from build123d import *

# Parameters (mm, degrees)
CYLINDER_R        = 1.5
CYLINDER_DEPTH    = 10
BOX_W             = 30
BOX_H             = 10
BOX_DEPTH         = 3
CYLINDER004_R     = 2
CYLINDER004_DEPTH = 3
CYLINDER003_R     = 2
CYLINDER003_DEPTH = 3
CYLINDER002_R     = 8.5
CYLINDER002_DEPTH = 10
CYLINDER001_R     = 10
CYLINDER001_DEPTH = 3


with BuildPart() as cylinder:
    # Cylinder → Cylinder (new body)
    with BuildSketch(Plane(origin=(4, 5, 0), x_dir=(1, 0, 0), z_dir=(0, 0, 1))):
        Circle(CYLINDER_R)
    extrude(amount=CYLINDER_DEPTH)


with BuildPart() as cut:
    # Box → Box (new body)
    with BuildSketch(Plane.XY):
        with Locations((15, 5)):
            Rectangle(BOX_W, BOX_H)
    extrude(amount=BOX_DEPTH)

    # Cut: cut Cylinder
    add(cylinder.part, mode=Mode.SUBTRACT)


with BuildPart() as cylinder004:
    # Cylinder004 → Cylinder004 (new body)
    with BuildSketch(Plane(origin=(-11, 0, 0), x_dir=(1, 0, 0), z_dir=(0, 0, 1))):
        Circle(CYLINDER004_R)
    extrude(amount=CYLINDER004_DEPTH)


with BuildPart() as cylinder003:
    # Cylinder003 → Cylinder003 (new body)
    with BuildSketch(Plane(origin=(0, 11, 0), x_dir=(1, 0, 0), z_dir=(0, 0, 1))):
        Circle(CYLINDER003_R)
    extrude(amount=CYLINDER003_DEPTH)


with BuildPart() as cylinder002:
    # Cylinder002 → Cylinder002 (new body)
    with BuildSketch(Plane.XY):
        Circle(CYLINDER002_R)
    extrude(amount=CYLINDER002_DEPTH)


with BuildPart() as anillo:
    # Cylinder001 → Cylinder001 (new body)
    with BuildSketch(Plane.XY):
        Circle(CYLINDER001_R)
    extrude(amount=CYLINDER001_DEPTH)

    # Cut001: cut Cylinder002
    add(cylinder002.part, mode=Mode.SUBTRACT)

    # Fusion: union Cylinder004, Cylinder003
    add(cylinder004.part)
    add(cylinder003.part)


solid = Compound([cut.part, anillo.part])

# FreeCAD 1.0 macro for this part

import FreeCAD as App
import Part
import Sketcher

V = App.Vector


def add_polygon(sketch, points):
    """Adds a closed chain of lines whose ends are joined by coincident constraints."""
    first, n = sketch.GeometryCount, len(points)
    for a, b in zip(points, points[1:] + points[:1]):
        sketch.addGeometry(Part.LineSegment(App.Vector(*a, 0), App.Vector(*b, 0)), False)
    for i in range(n):
        sketch.addConstraint(Sketcher.Constraint("Coincident", first + i, 2, first + (i + 1) % n, 1))

doc = App.newDocument("Part")
body = doc.addObject("PartDesign::Body", "Body")

# Sketch on XY plane
sketch1 = body.newObject("Sketcher::SketchObject", "Sketch")
sketch1.AttachmentSupport = (doc.getObject("XY_Plane"), [""])
sketch1.MapMode = "FlatFace"
sketch1.addGeometry(Part.Circle(V(4, 5, 0), V(0, 0, 1), 1.5), False)
sketch1.addConstraint(Sketcher.Constraint("Diameter", 0, 3.0))
sketch1.addConstraint(Sketcher.Constraint("DistanceX", -1, 1, 0, 3, 4.0))
sketch1.addConstraint(Sketcher.Constraint("DistanceY", -1, 1, 0, 3, 5.0))
pad1 = body.newObject("PartDesign::Pad", "Pad")
pad1.Profile = sketch1
pad1.Length = 10
body2 = doc.addObject("PartDesign::Body", "Body001")

# Sketch on XY plane
sketch2 = body2.newObject("Sketcher::SketchObject", "Sketch001")
sketch2.AttachmentSupport = (doc.getObject("XY_Plane001"), [""])
sketch2.MapMode = "FlatFace"
add_polygon(sketch2, [(0, 10), (0, 0), (30, 0), (30, 10)])  # lines 0-3
sketch2.addConstraint(Sketcher.Constraint("Vertical", 0))
sketch2.addConstraint(Sketcher.Constraint("Horizontal", 1))
sketch2.addConstraint(Sketcher.Constraint("Vertical", 2))
sketch2.addConstraint(Sketcher.Constraint("Horizontal", 3))
sketch2.addConstraint(Sketcher.Constraint("Coincident", 0, 2, -1, 1))
sketch2.addConstraint(Sketcher.Constraint("DistanceX", 1, 1, 1, 2, 30.0))
sketch2.addConstraint(Sketcher.Constraint("DistanceY", 0, 2, 0, 1, 10.0))
pad2 = body2.newObject("PartDesign::Pad", "Pad001")
pad2.Profile = sketch2
pad2.Length = 3
doc.recompute()

boolean = body2.newObject("PartDesign::Boolean", "Boolean")
boolean.Type = "Cut"
boolean.addObjects([body])
body3 = doc.addObject("PartDesign::Body", "Body002")

# Sketch on XY plane
sketch3 = body3.newObject("Sketcher::SketchObject", "Sketch002")
sketch3.AttachmentSupport = (doc.getObject("XY_Plane002"), [""])
sketch3.MapMode = "FlatFace"
sketch3.addGeometry(Part.Circle(V(-11, 0, 0), V(0, 0, 1), 2), False)
sketch3.addConstraint(Sketcher.Constraint("PointOnObject", 0, 3, -1))
sketch3.addConstraint(Sketcher.Constraint("Diameter", 0, 4.0))
sketch3.addConstraint(Sketcher.Constraint("DistanceX", 0, 3, -1, 1, 11.0))
pad3 = body3.newObject("PartDesign::Pad", "Pad002")
pad3.Profile = sketch3
pad3.Length = 3
body4 = doc.addObject("PartDesign::Body", "Body003")

# Sketch on XY plane
sketch4 = body4.newObject("Sketcher::SketchObject", "Sketch003")
sketch4.AttachmentSupport = (doc.getObject("XY_Plane003"), [""])
sketch4.MapMode = "FlatFace"
sketch4.addGeometry(Part.Circle(V(0, 11, 0), V(0, 0, 1), 2), False)
sketch4.addConstraint(Sketcher.Constraint("PointOnObject", 0, 3, -2))
sketch4.addConstraint(Sketcher.Constraint("Diameter", 0, 4.0))
sketch4.addConstraint(Sketcher.Constraint("DistanceY", -1, 1, 0, 3, 11.0))
pad4 = body4.newObject("PartDesign::Pad", "Pad003")
pad4.Profile = sketch4
pad4.Length = 3
body5 = doc.addObject("PartDesign::Body", "Body004")

# Sketch on XY plane
sketch5 = body5.newObject("Sketcher::SketchObject", "Sketch004")
sketch5.AttachmentSupport = (doc.getObject("XY_Plane004"), [""])
sketch5.MapMode = "FlatFace"
sketch5.addGeometry(Part.Circle(V(0, 0, 0), V(0, 0, 1), 8), False)
sketch5.addConstraint(Sketcher.Constraint("Coincident", 0, 3, -1, 1))
sketch5.addConstraint(Sketcher.Constraint("Diameter", 0, 17.0))
pad5 = body5.newObject("PartDesign::Pad", "Pad004")
pad5.Profile = sketch5
pad5.Length = 10
body6 = doc.addObject("PartDesign::Body", "Body005")

# Sketch on XY plane
sketch6 = body6.newObject("Sketcher::SketchObject", "Sketch005")
sketch6.AttachmentSupport = (doc.getObject("XY_Plane005"), [""])
sketch6.MapMode = "FlatFace"
sketch6.addGeometry(Part.Circle(V(0, 0, 0), V(0, 0, 1), 10), False)
sketch6.addConstraint(Sketcher.Constraint("Coincident", 0, 3, -1, 1))
sketch6.addConstraint(Sketcher.Constraint("Diameter", 0, 20.0))
pad6 = body6.newObject("PartDesign::Pad", "Pad005")
pad6.Profile = sketch6
pad6.Length = 3
doc.recompute()

boolean2 = body6.newObject("PartDesign::Boolean", "Boolean001")
boolean2.Type = "Cut"
boolean2.addObjects([body5])
doc.recompute()

boolean3 = body6.newObject("PartDesign::Boolean", "Boolean002")
boolean3.Type = "Fuse"
boolean3.addObjects([body3])
doc.recompute()

boolean4 = body6.newObject("PartDesign::Boolean", "Boolean003")
boolean4.Type = "Fuse"
boolean4.addObjects([body4])

doc.recompute()
